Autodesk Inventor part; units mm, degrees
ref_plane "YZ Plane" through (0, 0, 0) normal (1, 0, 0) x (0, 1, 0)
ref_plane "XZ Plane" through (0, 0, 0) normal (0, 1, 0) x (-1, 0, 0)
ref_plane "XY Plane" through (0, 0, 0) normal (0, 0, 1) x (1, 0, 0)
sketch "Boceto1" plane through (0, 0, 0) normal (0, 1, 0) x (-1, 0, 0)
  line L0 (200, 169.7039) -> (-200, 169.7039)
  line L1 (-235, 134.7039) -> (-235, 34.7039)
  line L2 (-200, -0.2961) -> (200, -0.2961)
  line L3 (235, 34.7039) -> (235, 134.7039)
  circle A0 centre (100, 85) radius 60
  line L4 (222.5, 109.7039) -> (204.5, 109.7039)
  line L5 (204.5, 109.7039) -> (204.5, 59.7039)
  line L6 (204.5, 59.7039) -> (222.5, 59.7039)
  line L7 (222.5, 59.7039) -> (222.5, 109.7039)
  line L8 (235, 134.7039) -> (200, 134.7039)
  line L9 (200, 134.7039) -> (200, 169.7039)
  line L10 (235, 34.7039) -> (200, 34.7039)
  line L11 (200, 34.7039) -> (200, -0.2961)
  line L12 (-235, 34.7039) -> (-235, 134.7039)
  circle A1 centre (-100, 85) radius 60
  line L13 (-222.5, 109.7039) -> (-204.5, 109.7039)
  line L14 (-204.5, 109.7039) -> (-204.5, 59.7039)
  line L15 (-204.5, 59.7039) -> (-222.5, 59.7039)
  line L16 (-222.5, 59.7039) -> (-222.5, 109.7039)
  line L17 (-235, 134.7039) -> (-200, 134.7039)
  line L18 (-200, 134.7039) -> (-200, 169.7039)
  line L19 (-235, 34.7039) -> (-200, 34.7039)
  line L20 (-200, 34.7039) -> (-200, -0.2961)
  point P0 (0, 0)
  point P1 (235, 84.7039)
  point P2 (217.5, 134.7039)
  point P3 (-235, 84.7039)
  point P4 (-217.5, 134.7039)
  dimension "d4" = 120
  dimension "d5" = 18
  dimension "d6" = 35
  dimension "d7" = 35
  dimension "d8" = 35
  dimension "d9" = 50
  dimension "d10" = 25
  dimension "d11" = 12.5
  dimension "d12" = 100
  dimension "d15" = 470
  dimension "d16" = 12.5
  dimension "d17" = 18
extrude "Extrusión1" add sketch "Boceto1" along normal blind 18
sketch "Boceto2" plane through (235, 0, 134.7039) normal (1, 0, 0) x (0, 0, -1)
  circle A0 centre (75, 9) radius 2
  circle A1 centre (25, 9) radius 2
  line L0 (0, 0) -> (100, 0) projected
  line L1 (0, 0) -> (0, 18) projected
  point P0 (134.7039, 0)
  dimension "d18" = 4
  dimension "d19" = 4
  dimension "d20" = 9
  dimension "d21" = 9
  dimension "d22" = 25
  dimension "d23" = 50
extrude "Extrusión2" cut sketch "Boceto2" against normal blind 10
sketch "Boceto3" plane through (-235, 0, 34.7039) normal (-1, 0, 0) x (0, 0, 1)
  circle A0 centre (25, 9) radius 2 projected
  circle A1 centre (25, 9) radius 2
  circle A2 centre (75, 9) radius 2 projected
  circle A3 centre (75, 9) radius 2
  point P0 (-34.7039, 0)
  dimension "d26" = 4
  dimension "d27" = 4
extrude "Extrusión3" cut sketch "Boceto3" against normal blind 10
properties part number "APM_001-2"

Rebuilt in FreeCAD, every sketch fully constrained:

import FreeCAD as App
import Part
import Sketcher
from FreeCAD import Vector

doc = App.newDocument("Part")
body = doc.addObject("PartDesign::Body", "Body")

# Sketch on XZ plane
sketch1 = body.newObject("Sketcher::SketchObject", "Sketch")
sketch1.AttachmentSupport = (doc.getObject("XZ_Plane"), [""])
sketch1.MapMode = "FlatFace"
sketch1.addGeometry(Part.LineSegment(Vector(-200, 135, 0), Vector(-200, 170, 0)), False)
sketch1.addGeometry(Part.LineSegment(Vector(-200, 170, 0), Vector(200, 170, 0)), False)
sketch1.addGeometry(Part.LineSegment(Vector(200, 170, 0), Vector(200, 135, 0)), False)
sketch1.addGeometry(Part.LineSegment(Vector(200, 135, 0), Vector(235, 135, 0)), False)
sketch1.addGeometry(Part.LineSegment(Vector(235, 135, 0), Vector(235, 35, 0)), False)
sketch1.addGeometry(Part.LineSegment(Vector(235, 35, 0), Vector(200, 35, 0)), False)
sketch1.addGeometry(Part.LineSegment(Vector(200, 35, 0), Vector(200, 0, 0)), False)
sketch1.addGeometry(Part.LineSegment(Vector(200, 0, 0), Vector(-200, 0, 0)), False)
sketch1.addGeometry(Part.LineSegment(Vector(-200, 0, 0), Vector(-200, 35, 0)), False)
sketch1.addGeometry(Part.LineSegment(Vector(-200, 35, 0), Vector(-235, 35, 0)), False)
sketch1.addGeometry(Part.LineSegment(Vector(-235, 35, 0), Vector(-235, 135, 0)), False)
sketch1.addGeometry(Part.LineSegment(Vector(-235, 135, 0), Vector(-200, 135, 0)), False)
sketch1.addGeometry(Part.LineSegment(Vector(222, 60, 0), Vector(222, 110, 0)), False)
sketch1.addGeometry(Part.LineSegment(Vector(222, 110, 0), Vector(204, 110, 0)), False)
sketch1.addGeometry(Part.LineSegment(Vector(204, 110, 0), Vector(204, 60, 0)), False)
sketch1.addGeometry(Part.LineSegment(Vector(204, 60, 0), Vector(222, 60, 0)), False)
sketch1.addGeometry(Part.Circle(Vector(100, 85, 0), Vector(0, 0, 1), 60), False)
sketch1.addGeometry(Part.Circle(Vector(-100, 85, 0), Vector(0, 0, 1), 60), False)
sketch1.addGeometry(Part.LineSegment(Vector(-204, 110, 0), Vector(-222, 110, 0)), False)
sketch1.addGeometry(Part.LineSegment(Vector(-222, 110, 0), Vector(-222, 60, 0)), False)
sketch1.addGeometry(Part.LineSegment(Vector(-222, 60, 0), Vector(-204, 60, 0)), False)
sketch1.addGeometry(Part.LineSegment(Vector(-204, 60, 0), Vector(-204, 110, 0)), False)
sketch1.addConstraint(Sketcher.Constraint("Coincident", 0, 2, 1, 1))
sketch1.addConstraint(Sketcher.Constraint("Coincident", 1, 2, 2, 1))
sketch1.addConstraint(Sketcher.Constraint("Coincident", 2, 2, 3, 1))
sketch1.addConstraint(Sketcher.Constraint("Coincident", 3, 2, 4, 1))
sketch1.addConstraint(Sketcher.Constraint("Coincident", 4, 2, 5, 1))
sketch1.addConstraint(Sketcher.Constraint("Coincident", 5, 2, 6, 1))
sketch1.addConstraint(Sketcher.Constraint("Coincident", 6, 2, 7, 1))
sketch1.addConstraint(Sketcher.Constraint("Coincident", 7, 2, 8, 1))
sketch1.addConstraint(Sketcher.Constraint("Coincident", 8, 2, 9, 1))
sketch1.addConstraint(Sketcher.Constraint("Coincident", 9, 2, 10, 1))
sketch1.addConstraint(Sketcher.Constraint("Coincident", 10, 2, 11, 1))
sketch1.addConstraint(Sketcher.Constraint("Coincident", 11, 2, 0, 1))
sketch1.addConstraint(Sketcher.Constraint("Coincident", 12, 2, 13, 1))
sketch1.addConstraint(Sketcher.Constraint("Coincident", 13, 2, 14, 1))
sketch1.addConstraint(Sketcher.Constraint("Coincident", 14, 2, 15, 1))
sketch1.addConstraint(Sketcher.Constraint("Coincident", 15, 2, 12, 1))
sketch1.addConstraint(Sketcher.Constraint("Coincident", 18, 2, 19, 1))
sketch1.addConstraint(Sketcher.Constraint("Coincident", 19, 2, 20, 1))
sketch1.addConstraint(Sketcher.Constraint("Coincident", 20, 2, 21, 1))
sketch1.addConstraint(Sketcher.Constraint("Coincident", 21, 2, 18, 1))
sketch1.addConstraint(Sketcher.Constraint("Vertical", 0))
sketch1.addConstraint(Sketcher.Constraint("Horizontal", 1))
sketch1.addConstraint(Sketcher.Constraint("Vertical", 2))
sketch1.addConstraint(Sketcher.Constraint("Horizontal", 3))
sketch1.addConstraint(Sketcher.Constraint("Vertical", 4))
sketch1.addConstraint(Sketcher.Constraint("Horizontal", 5))
sketch1.addConstraint(Sketcher.Constraint("Vertical", 6))
sketch1.addConstraint(Sketcher.Constraint("Horizontal", 7))
sketch1.addConstraint(Sketcher.Constraint("Vertical", 8))
sketch1.addConstraint(Sketcher.Constraint("Horizontal", 9))
sketch1.addConstraint(Sketcher.Constraint("Vertical", 10))
sketch1.addConstraint(Sketcher.Constraint("Horizontal", 11))
sketch1.addConstraint(Sketcher.Constraint("Vertical", 12))
sketch1.addConstraint(Sketcher.Constraint("Horizontal", 13))
sketch1.addConstraint(Sketcher.Constraint("Vertical", 14))
sketch1.addConstraint(Sketcher.Constraint("Horizontal", 15))
sketch1.addConstraint(Sketcher.Constraint("Horizontal", 18))
sketch1.addConstraint(Sketcher.Constraint("Vertical", 19))
sketch1.addConstraint(Sketcher.Constraint("Horizontal", 20))
sketch1.addConstraint(Sketcher.Constraint("Vertical", 21))
sketch1.addConstraint(Sketcher.Constraint("Equal", 16, 17))
sketch1.addConstraint(Sketcher.Constraint("Symmetric", 16, 3, 17, 3, -2))
sketch1.addConstraint(Sketcher.Constraint("Symmetric", 5, 2, 8, 2, -2))
sketch1.addConstraint(Sketcher.Constraint("Symmetric", 3, 2, 10, 2, -2))
sketch1.addConstraint(Sketcher.Constraint("Symmetric", 12, 2, 18, 2, -2))
sketch1.addConstraint(Sketcher.Constraint("Symmetric", 14, 2, 20, 2, -2))
sketch1.addConstraint(Sketcher.Constraint("Vertical", 2, 2, 5, 2))
sketch1.addConstraint(Sketcher.Constraint("Vertical", 0, 2, 7, 2))
sketch1.addConstraint(Sketcher.Constraint("Equal", 11, 0))
sketch1.addConstraint(Sketcher.Constraint("Equal", 2, 6))
sketch1.addConstraint(Sketcher.Constraint("Diameter", 16, 120.0))
sketch1.addConstraint(Sketcher.Constraint("DistanceX", 3, 1, 3, 2, 35.0))
sketch1.addConstraint(Sketcher.Constraint("DistanceX", 13, 2, 13, 1, 18.0))
sketch1.addConstraint(Sketcher.Constraint("DistanceY", 4, 2, 4, 1, 100.0))
sketch1.addConstraint(Sketcher.Constraint("DistanceY", 12, 1, 12, 2, 50.0))
sketch1.addConstraint(Sketcher.Constraint("DistanceX", -1, 1, 16, 3, 100.0))
sketch1.addConstraint(Sketcher.Constraint("DistanceX", 0, 2, 17, 3, 100.0))
sketch1.addConstraint(Sketcher.Constraint("DistanceY", 12, 2, 3, 2, 25.0))
sketch1.addConstraint(Sketcher.Constraint("DistanceX", 12, 2, 3, 2, 12.5))
sketch1.addConstraint(Sketcher.Constraint("DistanceY", -1, 1, 16, 3, 85.0))
sketch1.addConstraint(Sketcher.Constraint("DistanceY", -1, 1, 0, 2, 169.704))
pad1 = body.newObject("PartDesign::Pad", "Pad")
pad1.Profile = sketch1
pad1.Length = 18
pad1.Reversed = True

# Sketch on YZ plane
sketch2 = body.newObject("Sketcher::SketchObject", "Sketch001")
sketch2.AttachmentSupport = (doc.getObject("YZ_Plane"), [""])
sketch2.MapMode = "FlatFace"
sketch2.AttachmentOffset = App.Placement(Vector(0, 0, 235), App.Rotation())
sketch2.addGeometry(Part.Circle(Vector(9, 59.7, 0), Vector(0, 0, 1), 2), False)
sketch2.addGeometry(Part.Circle(Vector(9, 109.7, 0), Vector(0, 0, 1), 2), False)
sketch2.addConstraint(Sketcher.Constraint("Equal", 0, 1))
sketch2.addConstraint(Sketcher.Constraint("Vertical", 0, 3, 1, 3))
sketch2.addConstraint(Sketcher.Constraint("Diameter", 0, 4.0))
sketch2.addConstraint(Sketcher.Constraint("DistanceX", -1, 1, 0, 3, 9.0))
sketch2.addConstraint(Sketcher.Constraint("DistanceY", 0, 3, 1, 3, 50.0))
sketch2.addConstraint(Sketcher.Constraint("DistanceY", -1, 1, 0, 3, 59.704))
pocket1 = body.newObject("PartDesign::Pocket", "Pocket")
pocket1.Profile = sketch2
pocket1.Length = 10

# Sketch on YZ plane
sketch3 = body.newObject("Sketcher::SketchObject", "Sketch002")
sketch3.AttachmentSupport = (doc.getObject("YZ_Plane"), [""])
sketch3.MapMode = "FlatFace"
sketch3.AttachmentOffset = App.Placement(Vector(0, 0, -235), App.Rotation())
sketch3.addGeometry(Part.Circle(Vector(9, 59.7, 0), Vector(0, 0, 1), 2), False)
sketch3.addGeometry(Part.Circle(Vector(9, 109.7, 0), Vector(0, 0, 1), 2), False)
sketch3.addConstraint(Sketcher.Constraint("Equal", 0, 1))
sketch3.addConstraint(Sketcher.Constraint("Vertical", 0, 3, 1, 3))
sketch3.addConstraint(Sketcher.Constraint("Diameter", 0, 4.0))
sketch3.addConstraint(Sketcher.Constraint("DistanceX", -1, 1, 0, 3, 9.0))
sketch3.addConstraint(Sketcher.Constraint("DistanceY", 0, 3, 1, 3, 50.0))
sketch3.addConstraint(Sketcher.Constraint("DistanceY", -1, 1, 0, 3, 59.704))
pocket2 = body.newObject("PartDesign::Pocket", "Pocket001")
pocket2.Profile = sketch3
pocket2.Length = 10
pocket2.Reversed = True

doc.recompute()
